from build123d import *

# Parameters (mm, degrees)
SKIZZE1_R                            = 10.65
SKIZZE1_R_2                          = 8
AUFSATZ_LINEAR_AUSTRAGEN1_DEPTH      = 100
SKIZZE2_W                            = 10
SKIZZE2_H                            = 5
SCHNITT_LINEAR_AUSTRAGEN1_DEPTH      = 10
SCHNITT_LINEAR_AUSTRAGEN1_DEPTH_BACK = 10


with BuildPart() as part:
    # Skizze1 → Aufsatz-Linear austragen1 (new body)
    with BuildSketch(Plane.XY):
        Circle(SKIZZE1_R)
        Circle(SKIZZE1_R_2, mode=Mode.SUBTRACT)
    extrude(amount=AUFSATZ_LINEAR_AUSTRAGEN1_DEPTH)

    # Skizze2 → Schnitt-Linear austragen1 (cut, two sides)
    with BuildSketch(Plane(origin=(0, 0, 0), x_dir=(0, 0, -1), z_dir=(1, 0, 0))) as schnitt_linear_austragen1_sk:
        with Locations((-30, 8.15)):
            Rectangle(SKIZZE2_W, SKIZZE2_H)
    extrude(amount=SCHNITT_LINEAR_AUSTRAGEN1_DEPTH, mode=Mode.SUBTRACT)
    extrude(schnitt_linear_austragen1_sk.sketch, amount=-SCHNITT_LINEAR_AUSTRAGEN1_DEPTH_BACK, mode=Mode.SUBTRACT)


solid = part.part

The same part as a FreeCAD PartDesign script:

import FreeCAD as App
import Part
import Sketcher
from FreeCAD import Vector

doc = App.newDocument("Part")
params = doc.addObject("Spreadsheet::Sheet", "Params")
for row, (alias, value) in enumerate([
    ("sketch1_diameter", "16 mm"),
    ("sketch1_diameter2", "21.3 mm"),
    ("pad1_length", "100 mm"),
    ("sketch2_width", "5 mm"),
    ("sketch2_height", "10 mm"),
], start=1):
    params.set(f"A{row}", alias)
    params.set(f"B{row}", "=" + value)
    params.setAlias(f"B{row}", alias)

body = doc.addObject("PartDesign::Body", "Body")

# Sketch on XY plane
sketch1 = body.newObject("Sketcher::SketchObject", "Sketch")
sketch1.AttachmentSupport = (doc.getObject("XY_Plane"), [""])
sketch1.MapMode = "FlatFace"
sketch1.addGeometry(Part.Circle(Vector(0, 0, 0), Vector(0, 0, 1), 11), False)
sketch1.addGeometry(Part.Circle(Vector(0, 0, 0), Vector(0, 0, 1), 8), False)
sketch1.addConstraint(Sketcher.Constraint("Coincident", 0, 3, -1, 1))
sketch1.addConstraint(Sketcher.Constraint("Coincident", 1, 3, -1, 1))
sketch1.addConstraint(Sketcher.Constraint("Diameter", 1, 16.0))
sketch1.addConstraint(Sketcher.Constraint("Diameter", 0, 21.3))
sketch1.setExpression("Constraints[2]", "Params.sketch1_diameter")
sketch1.setExpression("Constraints[3]", "Params.sketch1_diameter2")
pad1 = body.newObject("PartDesign::Pad", "Pad")
pad1.Profile = sketch1
pad1.setExpression("Length", "Params.pad1_length")

# Sketch on YZ plane
sketch2 = body.newObject("Sketcher::SketchObject", "Sketch001")
sketch2.AttachmentSupport = (doc.getObject("YZ_Plane"), [""])
sketch2.MapMode = "FlatFace"
sketch2.addGeometry(Part.LineSegment(Vector(11, 35, 0), Vector(6, 35, 0)), False)
sketch2.addGeometry(Part.LineSegment(Vector(6, 35, 0), Vector(6, 25, 0)), False)
sketch2.addGeometry(Part.LineSegment(Vector(6, 25, 0), Vector(11, 25, 0)), False)
sketch2.addGeometry(Part.LineSegment(Vector(11, 25, 0), Vector(11, 35, 0)), False)
sketch2.addConstraint(Sketcher.Constraint("Coincident", 0, 2, 1, 1))
sketch2.addConstraint(Sketcher.Constraint("Coincident", 1, 2, 2, 1))
sketch2.addConstraint(Sketcher.Constraint("Coincident", 2, 2, 3, 1))
sketch2.addConstraint(Sketcher.Constraint("Coincident", 3, 2, 0, 1))
sketch2.addConstraint(Sketcher.Constraint("Horizontal", 0))
sketch2.addConstraint(Sketcher.Constraint("Vertical", 1))
sketch2.addConstraint(Sketcher.Constraint("Horizontal", 2))
sketch2.addConstraint(Sketcher.Constraint("Vertical", 3))
sketch2.addConstraint(Sketcher.Constraint("DistanceX", 0, 2, 0, 1, 5.0))
sketch2.addConstraint(Sketcher.Constraint("DistanceY", 1, 2, 1, 1, 10.0))
sketch2.addConstraint(Sketcher.Constraint("DistanceY", -1, 1, 0, 2, 35.0))
sketch2.addConstraint(Sketcher.Constraint("DistanceX", -1, 1, 0, 2, 5.65))
sketch2.setExpression("Constraints[8]", "Params.sketch2_width")
sketch2.setExpression("Constraints[9]", "Params.sketch2_height")
pocket1 = body.newObject("PartDesign::Pocket", "Pocket")
pocket1.Profile = sketch2
pocket1.Type = "ThroughAll"
pocket1.Midplane = True

doc.recompute()
